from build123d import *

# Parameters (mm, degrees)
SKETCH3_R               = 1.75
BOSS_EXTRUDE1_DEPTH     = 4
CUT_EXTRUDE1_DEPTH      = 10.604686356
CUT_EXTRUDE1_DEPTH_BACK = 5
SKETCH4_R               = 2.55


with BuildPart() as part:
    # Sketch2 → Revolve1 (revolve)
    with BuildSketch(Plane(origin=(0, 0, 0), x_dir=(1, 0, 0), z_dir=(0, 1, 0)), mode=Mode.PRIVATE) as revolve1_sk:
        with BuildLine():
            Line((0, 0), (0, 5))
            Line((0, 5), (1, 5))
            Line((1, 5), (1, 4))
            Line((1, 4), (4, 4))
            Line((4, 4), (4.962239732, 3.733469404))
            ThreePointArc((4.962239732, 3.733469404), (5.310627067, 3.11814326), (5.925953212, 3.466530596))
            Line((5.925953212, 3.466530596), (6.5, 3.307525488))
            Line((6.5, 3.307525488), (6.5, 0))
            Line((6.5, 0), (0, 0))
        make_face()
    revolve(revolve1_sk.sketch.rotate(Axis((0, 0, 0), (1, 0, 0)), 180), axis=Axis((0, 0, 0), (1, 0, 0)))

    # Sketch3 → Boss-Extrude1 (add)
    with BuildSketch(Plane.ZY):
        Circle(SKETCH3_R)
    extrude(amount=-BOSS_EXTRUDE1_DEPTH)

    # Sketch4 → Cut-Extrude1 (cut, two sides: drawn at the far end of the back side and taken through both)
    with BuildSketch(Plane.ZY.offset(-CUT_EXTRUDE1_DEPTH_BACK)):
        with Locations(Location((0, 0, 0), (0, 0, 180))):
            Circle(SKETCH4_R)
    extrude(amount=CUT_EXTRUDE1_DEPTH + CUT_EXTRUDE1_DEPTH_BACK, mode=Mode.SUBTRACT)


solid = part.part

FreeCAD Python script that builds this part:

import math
import FreeCAD as App
import Part
import Sketcher
from FreeCAD import Vector

doc = App.newDocument("Part")
params = doc.addObject("Spreadsheet::Sheet", "Params")
for row, (alias, value) in enumerate([
    ("sketch1_radius", "0.5 mm"),
    ("sketch1_width", "3 mm"),
    ("sketch1_width2", "1 mm"),
    ("sketch1_height", "5 mm"),
    ("sketch1_width3", "6.5 mm"),
    ("revolution_angle", "360 deg"),
    ("sketch2_diameter", "3.5 mm"),
    ("pad1_length", "4 mm"),
    ("sketch3_diameter", "5.1 mm"),
    ("pocket1_length", "10.604686 mm"),
    ("pocket1_length2", "5 mm"),
], start=1):
    params.set(f"A{row}", alias)
    params.set(f"B{row}", "=" + value)
    params.setAlias(f"B{row}", alias)

body = doc.addObject("PartDesign::Body", "Body")

# Sketch on XZ plane
sketch1 = doc.addObject("Sketcher::SketchObject", "Sketch")
body.addObject(sketch1)
sketch1.AttachmentSupport = (doc.XZ_Plane, [""])
sketch1.MapMode = "FlatFace"
sketch1.addGeometry(Part.LineSegment(Vector(0, -5, 0), Vector(0, 0, 0)), False)
sketch1.addGeometry(Part.LineSegment(Vector(0, 0, 0), Vector(6.5, 0, 0)), False)
sketch1.addGeometry(Part.LineSegment(Vector(6.5, 0, 0), Vector(6.5, -3.3, 0)), False)
sketch1.addGeometry(Part.LineSegment(Vector(6.5, -3.3, 0), Vector(5.9, -3.5, 0)), False)
sketch1.addGeometry(Part.ArcOfCircle(Part.Circle(Vector(5.4, -3.6, 0), Vector(0, 0, 1), 0.5), math.radians(15), math.radians(195)), False)
sketch1.addGeometry(Part.LineSegment(Vector(5, -3.7, 0), Vector(4, -4, 0)), False)
sketch1.addGeometry(Part.LineSegment(Vector(4, -4, 0), Vector(1, -4, 0)), False)
sketch1.addGeometry(Part.LineSegment(Vector(1, -4, 0), Vector(1, -5, 0)), False)
sketch1.addGeometry(Part.LineSegment(Vector(1, -5, 0), Vector(0, -5, 0)), False)
sketch1.addConstraint(Sketcher.Constraint("Coincident", 0, 2, 1, 1))
sketch1.addConstraint(Sketcher.Constraint("Coincident", 1, 2, 2, 1))
sketch1.addConstraint(Sketcher.Constraint("Coincident", 2, 2, 3, 1))
sketch1.addConstraint(Sketcher.Constraint("Coincident", 3, 2, 4, 1))
sketch1.addConstraint(Sketcher.Constraint("Coincident", 4, 2, 5, 1))
sketch1.addConstraint(Sketcher.Constraint("Coincident", 5, 2, 6, 1))
sketch1.addConstraint(Sketcher.Constraint("Coincident", 6, 2, 7, 1))
sketch1.addConstraint(Sketcher.Constraint("Coincident", 7, 2, 8, 1))
sketch1.addConstraint(Sketcher.Constraint("Coincident", 8, 2, 0, 1))
sketch1.addConstraint(Sketcher.Constraint("Vertical", 0))
sketch1.addConstraint(Sketcher.Constraint("Horizontal", 1))
sketch1.addConstraint(Sketcher.Constraint("Vertical", 2))
sketch1.addConstraint(Sketcher.Constraint("Horizontal", 6))
sketch1.addConstraint(Sketcher.Constraint("Vertical", 7))
sketch1.addConstraint(Sketcher.Constraint("Horizontal", 8))
sketch1.addConstraint(Sketcher.Constraint("Coincident", 0, 2, -1, 1))
sketch1.addConstraint(Sketcher.Constraint("Parallel", 3, 5))
sketch1.addConstraint(Sketcher.Constraint("Equal", 8, 7))
sketch1.addConstraint(Sketcher.Constraint("Radius", 4, 0.5))
sketch1.addConstraint(Sketcher.Constraint("DistanceX", 6, 2, 6, 1, 3.0))
sketch1.addConstraint(Sketcher.Constraint("DistanceX", 8, 2, 8, 1, 1.0))
sketch1.addConstraint(Sketcher.Constraint("DistanceY", 0, 1, 0, 2, 5.0))
sketch1.addConstraint(Sketcher.Constraint("DistanceX", 1, 1, 1, 2, 6.5))
sketch1.addConstraint(Sketcher.Constraint("DistanceY", 4, 3, -1, 1, 3.6))
sketch1.addConstraint(Sketcher.Constraint("Distance", 3, 0.595661))
sketch1.addConstraint(Sketcher.Constraint("Distance", 5, 0.998471))
sketch1.addConstraint(Sketcher.Constraint("DistanceY", 3, 2, -1, 1, 3.466531))
sketch1.setExpression("Constraints[18]", "Params.sketch1_radius")
sketch1.setExpression("Constraints[19]", "Params.sketch1_width")
sketch1.setExpression("Constraints[20]", "Params.sketch1_width2")
sketch1.setExpression("Constraints[21]", "Params.sketch1_height")
sketch1.setExpression("Constraints[22]", "Params.sketch1_width3")
revolution = doc.addObject("PartDesign::Revolution", "Revolution")
body.addObject(revolution)
revolution.Profile = sketch1
revolution.ReferenceAxis = (sketch1, ["H_Axis"])
revolution.setExpression("Angle", "Params.revolution_angle")

# Sketch on YZ plane
sketch2 = doc.addObject("Sketcher::SketchObject", "Sketch001")
body.addObject(sketch2)
sketch2.AttachmentSupport = (doc.YZ_Plane, [""])
sketch2.MapMode = "FlatFace"
sketch2.addGeometry(Part.Circle(Vector(0, 0, 0), Vector(0, 0, 1), 1.8), False)
sketch2.addConstraint(Sketcher.Constraint("Coincident", 0, 3, -1, 1))
sketch2.addConstraint(Sketcher.Constraint("Diameter", 0, 3.5))
sketch2.setExpression("Constraints[1]", "Params.sketch2_diameter")
pad1 = doc.addObject("PartDesign::Pad", "Pad")
body.addObject(pad1)
pad1.Profile = sketch2
pad1.setExpression("Length", "Params.pad1_length")

# Sketch on YZ plane
sketch3 = doc.addObject("Sketcher::SketchObject", "Sketch002")
body.addObject(sketch3)
sketch3.AttachmentSupport = (doc.YZ_Plane, [""])
sketch3.MapMode = "FlatFace"
sketch3.addGeometry(Part.Circle(Vector(0, 0, 0), Vector(0, 0, 1), 2.5), False)
sketch3.addConstraint(Sketcher.Constraint("Coincident", 0, 3, -1, 1))
sketch3.addConstraint(Sketcher.Constraint("Diameter", 0, 5.1))
sketch3.setExpression("Constraints[1]", "Params.sketch3_diameter")
pocket1 = doc.addObject("PartDesign::Pocket", "Pocket")
body.addObject(pocket1)
pocket1.Profile = sketch3
pocket1.Type = "TwoLengths"
pocket1.setExpression("Length", "Params.pocket1_length")
pocket1.setExpression("Length2", "Params.pocket1_length2")

doc.recompute()
